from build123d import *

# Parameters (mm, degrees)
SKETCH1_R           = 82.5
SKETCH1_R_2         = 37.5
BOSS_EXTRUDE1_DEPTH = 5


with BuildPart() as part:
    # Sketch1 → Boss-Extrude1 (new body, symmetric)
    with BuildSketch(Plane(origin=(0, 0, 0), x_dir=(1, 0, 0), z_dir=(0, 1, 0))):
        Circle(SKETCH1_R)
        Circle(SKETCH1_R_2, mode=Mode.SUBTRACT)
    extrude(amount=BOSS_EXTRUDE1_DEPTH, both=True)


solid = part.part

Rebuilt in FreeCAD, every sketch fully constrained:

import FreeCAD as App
import Part
import Sketcher

doc = App.newDocument("Part")
body = doc.addObject("PartDesign::Body", "Body")

sketch1 = doc.addObject("Sketcher::SketchObject", "Sketch")
body.addObject(sketch1)
sketch1.AttachmentSupport = (doc.XZ_Plane, [""])
sketch1.MapMode = "FlatFace"
sketch1.addGeometry(Part.Circle(App.Vector(0, 0, 0), App.Vector(0, 0, 1), 82), False)
sketch1.addGeometry(Part.Circle(App.Vector(0, 0, 0), App.Vector(0, 0, 1), 38), False)
sketch1.addConstraint(Sketcher.Constraint("Coincident", 0, 3, -1, 1))
sketch1.addConstraint(Sketcher.Constraint("Coincident", 1, 3, -1, 1))
sketch1.addConstraint(Sketcher.Constraint("Diameter", 0, 165.0))
sketch1.addConstraint(Sketcher.Constraint("Diameter", 1, 75.0))
pad1 = doc.addObject("PartDesign::Pad", "Pad")
body.addObject(pad1)
pad1.Profile = sketch1
pad1.Length = 10
pad1.Midplane = True

doc.recompute()
